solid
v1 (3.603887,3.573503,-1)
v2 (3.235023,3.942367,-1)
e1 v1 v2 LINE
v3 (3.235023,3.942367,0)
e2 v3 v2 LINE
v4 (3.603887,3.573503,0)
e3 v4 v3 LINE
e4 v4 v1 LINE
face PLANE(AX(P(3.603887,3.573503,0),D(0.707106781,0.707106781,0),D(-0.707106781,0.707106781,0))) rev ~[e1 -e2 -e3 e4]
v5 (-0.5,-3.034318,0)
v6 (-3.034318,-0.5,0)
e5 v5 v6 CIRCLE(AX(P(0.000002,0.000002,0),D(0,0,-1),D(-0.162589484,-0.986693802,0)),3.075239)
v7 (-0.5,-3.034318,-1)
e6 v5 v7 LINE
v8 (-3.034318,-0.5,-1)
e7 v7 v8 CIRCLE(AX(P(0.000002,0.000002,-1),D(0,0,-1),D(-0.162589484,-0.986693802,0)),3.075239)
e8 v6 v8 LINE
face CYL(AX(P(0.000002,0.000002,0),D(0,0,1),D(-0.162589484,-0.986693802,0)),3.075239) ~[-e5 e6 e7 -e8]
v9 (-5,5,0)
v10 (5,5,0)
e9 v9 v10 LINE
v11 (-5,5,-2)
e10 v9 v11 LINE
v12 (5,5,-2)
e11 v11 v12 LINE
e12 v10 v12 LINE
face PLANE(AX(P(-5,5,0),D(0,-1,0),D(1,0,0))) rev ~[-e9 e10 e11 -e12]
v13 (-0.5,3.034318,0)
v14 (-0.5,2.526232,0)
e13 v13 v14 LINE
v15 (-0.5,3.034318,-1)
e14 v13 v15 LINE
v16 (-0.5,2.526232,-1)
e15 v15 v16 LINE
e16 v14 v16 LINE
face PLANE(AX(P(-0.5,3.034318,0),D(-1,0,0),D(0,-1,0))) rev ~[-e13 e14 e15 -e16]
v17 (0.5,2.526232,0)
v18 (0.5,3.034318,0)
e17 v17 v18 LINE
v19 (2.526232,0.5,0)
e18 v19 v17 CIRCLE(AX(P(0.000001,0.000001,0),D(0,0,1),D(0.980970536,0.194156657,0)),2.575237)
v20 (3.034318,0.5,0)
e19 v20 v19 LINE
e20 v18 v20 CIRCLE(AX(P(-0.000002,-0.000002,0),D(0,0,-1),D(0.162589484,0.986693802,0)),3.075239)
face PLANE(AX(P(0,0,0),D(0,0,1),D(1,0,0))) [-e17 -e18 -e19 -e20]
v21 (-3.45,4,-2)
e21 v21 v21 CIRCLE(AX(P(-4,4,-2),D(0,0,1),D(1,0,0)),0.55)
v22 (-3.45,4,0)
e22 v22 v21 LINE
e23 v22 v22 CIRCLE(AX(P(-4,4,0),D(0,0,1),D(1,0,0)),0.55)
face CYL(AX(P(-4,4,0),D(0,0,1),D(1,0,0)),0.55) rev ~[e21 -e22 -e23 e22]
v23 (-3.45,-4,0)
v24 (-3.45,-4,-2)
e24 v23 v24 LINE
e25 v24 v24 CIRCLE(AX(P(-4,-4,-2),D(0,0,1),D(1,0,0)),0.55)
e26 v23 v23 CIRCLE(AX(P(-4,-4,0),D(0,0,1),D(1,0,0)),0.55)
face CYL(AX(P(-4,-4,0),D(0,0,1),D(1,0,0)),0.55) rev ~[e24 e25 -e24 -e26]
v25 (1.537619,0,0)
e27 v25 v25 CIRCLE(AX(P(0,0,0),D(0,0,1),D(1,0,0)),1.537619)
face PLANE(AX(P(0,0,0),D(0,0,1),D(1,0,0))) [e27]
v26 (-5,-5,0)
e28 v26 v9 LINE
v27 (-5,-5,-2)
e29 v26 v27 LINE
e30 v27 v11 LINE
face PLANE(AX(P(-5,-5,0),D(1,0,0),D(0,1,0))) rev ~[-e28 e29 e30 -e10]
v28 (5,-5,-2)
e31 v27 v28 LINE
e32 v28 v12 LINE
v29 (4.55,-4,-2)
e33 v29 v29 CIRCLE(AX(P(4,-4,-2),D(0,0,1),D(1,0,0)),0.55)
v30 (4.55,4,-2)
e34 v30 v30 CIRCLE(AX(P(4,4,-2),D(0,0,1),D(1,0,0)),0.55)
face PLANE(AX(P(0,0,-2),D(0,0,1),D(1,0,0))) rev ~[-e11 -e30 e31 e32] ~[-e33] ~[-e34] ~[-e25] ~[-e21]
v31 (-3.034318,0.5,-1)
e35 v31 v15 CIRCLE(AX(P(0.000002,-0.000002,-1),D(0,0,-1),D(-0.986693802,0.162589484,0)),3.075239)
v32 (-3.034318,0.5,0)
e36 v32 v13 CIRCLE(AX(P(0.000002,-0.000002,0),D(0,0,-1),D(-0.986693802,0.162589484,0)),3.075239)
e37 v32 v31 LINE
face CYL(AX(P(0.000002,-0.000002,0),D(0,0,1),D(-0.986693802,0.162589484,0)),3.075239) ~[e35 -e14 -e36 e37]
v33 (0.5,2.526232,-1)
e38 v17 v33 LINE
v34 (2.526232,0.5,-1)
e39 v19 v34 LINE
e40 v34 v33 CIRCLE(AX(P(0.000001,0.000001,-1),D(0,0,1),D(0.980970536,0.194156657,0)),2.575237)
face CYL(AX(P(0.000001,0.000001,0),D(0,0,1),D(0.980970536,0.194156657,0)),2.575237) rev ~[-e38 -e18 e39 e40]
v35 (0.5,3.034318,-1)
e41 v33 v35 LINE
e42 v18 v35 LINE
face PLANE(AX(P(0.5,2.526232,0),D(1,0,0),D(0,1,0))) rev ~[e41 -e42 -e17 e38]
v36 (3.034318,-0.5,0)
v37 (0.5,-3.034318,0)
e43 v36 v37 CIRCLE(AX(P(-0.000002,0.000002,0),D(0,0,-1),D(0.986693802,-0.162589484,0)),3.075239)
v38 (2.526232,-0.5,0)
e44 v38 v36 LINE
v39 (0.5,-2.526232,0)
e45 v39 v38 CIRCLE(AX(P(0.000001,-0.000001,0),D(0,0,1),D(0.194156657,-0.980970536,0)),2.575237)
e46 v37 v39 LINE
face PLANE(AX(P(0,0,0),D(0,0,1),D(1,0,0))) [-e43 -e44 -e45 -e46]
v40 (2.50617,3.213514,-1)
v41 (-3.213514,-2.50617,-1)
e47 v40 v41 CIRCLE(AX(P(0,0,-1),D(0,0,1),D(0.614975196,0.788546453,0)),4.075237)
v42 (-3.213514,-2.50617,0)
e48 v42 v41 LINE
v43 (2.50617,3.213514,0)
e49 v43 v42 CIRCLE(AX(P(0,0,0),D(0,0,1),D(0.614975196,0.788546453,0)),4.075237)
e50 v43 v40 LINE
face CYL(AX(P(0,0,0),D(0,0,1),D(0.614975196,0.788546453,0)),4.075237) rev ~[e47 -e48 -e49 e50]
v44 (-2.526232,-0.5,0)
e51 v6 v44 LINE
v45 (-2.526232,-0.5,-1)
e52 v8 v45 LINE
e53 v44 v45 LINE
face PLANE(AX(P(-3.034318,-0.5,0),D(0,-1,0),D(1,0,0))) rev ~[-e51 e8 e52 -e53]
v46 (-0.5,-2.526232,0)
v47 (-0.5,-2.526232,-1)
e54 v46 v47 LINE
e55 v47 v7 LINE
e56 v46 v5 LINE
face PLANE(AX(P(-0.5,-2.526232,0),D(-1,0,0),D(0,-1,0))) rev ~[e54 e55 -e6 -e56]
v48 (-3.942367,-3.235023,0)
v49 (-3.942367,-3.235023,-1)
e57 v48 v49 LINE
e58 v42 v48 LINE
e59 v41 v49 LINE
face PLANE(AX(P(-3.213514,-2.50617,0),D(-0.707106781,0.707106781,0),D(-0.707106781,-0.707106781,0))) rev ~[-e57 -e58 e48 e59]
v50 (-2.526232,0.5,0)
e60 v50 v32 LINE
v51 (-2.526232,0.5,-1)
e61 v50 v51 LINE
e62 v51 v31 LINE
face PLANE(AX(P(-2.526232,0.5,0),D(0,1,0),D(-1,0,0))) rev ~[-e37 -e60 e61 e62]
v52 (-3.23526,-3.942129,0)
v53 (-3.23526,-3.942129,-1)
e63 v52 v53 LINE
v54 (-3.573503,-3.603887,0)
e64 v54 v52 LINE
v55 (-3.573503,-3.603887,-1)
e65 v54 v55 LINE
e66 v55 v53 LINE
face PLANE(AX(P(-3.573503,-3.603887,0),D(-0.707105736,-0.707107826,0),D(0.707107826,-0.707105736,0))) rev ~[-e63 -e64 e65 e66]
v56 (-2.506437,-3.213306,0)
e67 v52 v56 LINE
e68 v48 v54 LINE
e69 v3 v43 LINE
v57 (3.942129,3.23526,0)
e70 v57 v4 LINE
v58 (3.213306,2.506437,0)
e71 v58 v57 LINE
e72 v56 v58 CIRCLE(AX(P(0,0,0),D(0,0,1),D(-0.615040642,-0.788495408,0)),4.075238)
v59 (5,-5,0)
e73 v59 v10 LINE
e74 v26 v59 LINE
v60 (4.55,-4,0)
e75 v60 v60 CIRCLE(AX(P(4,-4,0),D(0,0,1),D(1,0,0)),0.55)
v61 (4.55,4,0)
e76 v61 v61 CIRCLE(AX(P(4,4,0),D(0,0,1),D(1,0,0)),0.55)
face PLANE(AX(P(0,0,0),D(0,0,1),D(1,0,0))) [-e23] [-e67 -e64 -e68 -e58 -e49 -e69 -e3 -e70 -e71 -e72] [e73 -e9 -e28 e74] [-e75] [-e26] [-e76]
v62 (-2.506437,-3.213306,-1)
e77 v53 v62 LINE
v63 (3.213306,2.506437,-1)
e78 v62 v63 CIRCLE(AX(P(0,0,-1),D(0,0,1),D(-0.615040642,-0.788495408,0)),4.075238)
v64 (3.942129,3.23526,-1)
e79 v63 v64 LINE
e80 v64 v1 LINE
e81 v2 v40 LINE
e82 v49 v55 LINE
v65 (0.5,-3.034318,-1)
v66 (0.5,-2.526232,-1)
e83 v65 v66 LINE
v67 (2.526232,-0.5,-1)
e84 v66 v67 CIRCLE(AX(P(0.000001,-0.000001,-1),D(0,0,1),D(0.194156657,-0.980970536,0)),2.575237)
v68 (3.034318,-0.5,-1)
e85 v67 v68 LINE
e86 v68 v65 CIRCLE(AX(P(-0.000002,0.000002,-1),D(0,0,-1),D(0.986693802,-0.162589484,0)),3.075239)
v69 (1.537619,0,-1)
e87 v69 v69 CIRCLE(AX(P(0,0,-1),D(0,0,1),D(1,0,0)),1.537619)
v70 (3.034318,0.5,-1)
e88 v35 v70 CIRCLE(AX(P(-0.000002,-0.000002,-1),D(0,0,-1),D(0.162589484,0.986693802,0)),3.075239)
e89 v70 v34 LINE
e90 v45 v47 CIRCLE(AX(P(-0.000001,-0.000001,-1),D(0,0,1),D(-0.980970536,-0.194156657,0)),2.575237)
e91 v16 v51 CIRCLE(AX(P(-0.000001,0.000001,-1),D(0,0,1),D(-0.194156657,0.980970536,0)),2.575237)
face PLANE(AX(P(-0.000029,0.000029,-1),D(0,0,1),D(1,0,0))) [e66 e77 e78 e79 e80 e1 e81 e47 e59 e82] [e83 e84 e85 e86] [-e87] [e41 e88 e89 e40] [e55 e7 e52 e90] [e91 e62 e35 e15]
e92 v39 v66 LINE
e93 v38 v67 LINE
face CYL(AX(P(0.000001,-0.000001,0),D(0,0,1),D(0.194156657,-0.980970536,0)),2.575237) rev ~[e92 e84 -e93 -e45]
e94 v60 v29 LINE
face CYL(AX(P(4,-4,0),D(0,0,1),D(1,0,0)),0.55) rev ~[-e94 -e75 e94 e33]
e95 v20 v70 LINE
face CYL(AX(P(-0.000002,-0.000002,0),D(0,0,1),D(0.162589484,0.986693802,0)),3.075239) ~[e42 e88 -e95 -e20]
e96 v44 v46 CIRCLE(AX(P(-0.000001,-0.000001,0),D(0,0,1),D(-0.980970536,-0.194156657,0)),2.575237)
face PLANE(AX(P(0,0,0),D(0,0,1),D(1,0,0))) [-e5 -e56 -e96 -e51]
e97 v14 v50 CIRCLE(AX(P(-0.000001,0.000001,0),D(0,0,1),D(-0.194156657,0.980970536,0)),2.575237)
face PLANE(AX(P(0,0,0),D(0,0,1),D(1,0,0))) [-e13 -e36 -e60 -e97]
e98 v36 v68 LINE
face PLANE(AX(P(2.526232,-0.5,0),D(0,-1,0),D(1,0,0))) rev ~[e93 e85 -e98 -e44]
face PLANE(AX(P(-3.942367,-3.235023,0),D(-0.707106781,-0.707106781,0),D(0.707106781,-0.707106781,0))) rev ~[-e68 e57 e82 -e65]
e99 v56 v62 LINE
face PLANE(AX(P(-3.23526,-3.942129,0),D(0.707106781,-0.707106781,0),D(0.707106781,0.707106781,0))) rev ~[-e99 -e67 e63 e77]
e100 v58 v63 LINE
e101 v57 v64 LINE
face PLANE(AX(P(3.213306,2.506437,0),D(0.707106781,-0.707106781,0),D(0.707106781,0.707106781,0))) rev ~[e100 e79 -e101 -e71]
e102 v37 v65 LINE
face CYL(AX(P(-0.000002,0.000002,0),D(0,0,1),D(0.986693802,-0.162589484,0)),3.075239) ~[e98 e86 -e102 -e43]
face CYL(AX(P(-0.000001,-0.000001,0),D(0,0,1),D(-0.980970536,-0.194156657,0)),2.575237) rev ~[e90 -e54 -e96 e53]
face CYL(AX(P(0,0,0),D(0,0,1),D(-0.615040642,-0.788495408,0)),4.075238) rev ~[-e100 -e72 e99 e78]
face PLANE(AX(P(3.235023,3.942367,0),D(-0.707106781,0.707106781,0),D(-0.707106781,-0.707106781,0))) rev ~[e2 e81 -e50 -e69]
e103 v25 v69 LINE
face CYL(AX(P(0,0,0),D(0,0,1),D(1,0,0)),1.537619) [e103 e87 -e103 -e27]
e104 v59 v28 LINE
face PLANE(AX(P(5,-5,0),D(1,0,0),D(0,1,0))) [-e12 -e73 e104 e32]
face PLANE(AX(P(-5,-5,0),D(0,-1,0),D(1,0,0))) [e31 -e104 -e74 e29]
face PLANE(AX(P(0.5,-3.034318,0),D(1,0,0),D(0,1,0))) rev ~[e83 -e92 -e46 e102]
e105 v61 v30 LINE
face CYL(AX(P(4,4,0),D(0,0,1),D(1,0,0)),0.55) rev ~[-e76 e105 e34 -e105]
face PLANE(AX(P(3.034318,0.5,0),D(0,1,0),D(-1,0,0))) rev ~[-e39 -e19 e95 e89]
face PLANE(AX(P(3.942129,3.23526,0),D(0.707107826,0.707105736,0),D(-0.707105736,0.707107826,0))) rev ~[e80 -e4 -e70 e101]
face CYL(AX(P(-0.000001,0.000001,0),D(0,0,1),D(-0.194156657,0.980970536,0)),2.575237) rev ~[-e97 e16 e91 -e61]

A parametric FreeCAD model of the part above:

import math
import FreeCAD as App
import Part
import Sketcher

V = App.Vector
Q = App.Units.Quantity


def add_polygon(sketch, points):
    """Adds a closed chain of lines whose ends are joined by coincident constraints."""
    first, n = sketch.GeometryCount, len(points)
    for a, b in zip(points, points[1:] + points[:1]):
        sketch.addGeometry(Part.LineSegment(App.Vector(*a, 0), App.Vector(*b, 0)), False)
    for i in range(n):
        sketch.addConstraint(Sketcher.Constraint("Coincident", first + i, 2, first + (i + 1) % n, 1))

doc = App.newDocument("Part")
body = doc.addObject("PartDesign::Body", "Body")

sketch1 = body.newObject("Sketcher::SketchObject", "Sketch")
sketch1.AttachmentSupport = (doc.getObject("XY_Plane"), [""])
sketch1.MapMode = "FlatFace"
add_polygon(sketch1, [(-5, 5), (-5, -5), (5, -5), (5, 5)])
sketch1.addGeometry(Part.Circle(V(-4, -4, 0), V(0, 0, 1), 0.6), False)
sketch1.addGeometry(Part.Circle(V(4, -4, 0), V(0, 0, 1), 0.6), False)
sketch1.addGeometry(Part.Circle(V(-4, 4, 0), V(0, 0, 1), 0.6), False)
sketch1.addGeometry(Part.Circle(V(4, 4, 0), V(0, 0, 1), 0.6), False)
sketch1.addConstraint(Sketcher.Constraint("Vertical", 0))
sketch1.addConstraint(Sketcher.Constraint("Horizontal", 1))
sketch1.addConstraint(Sketcher.Constraint("Vertical", 2))
sketch1.addConstraint(Sketcher.Constraint("Horizontal", 3))
sketch1.addConstraint(Sketcher.Constraint("Equal", 4, 5))
sketch1.addConstraint(Sketcher.Constraint("Equal", 5, 6))
sketch1.addConstraint(Sketcher.Constraint("Equal", 6, 7))
sketch1.addConstraint(Sketcher.Constraint("Symmetric", 5, 3, 6, 3, -1, 1))
sketch1.addConstraint(Sketcher.Constraint("Symmetric", 4, 3, 7, 3, -1, 1))
sketch1.addConstraint(Sketcher.Constraint("Symmetric", 0, 2, 2, 2, -1, 1))
sketch1.addConstraint(Sketcher.Constraint("Symmetric", 4, 3, 5, 3, -2))
sketch1.addConstraint(Sketcher.Constraint("Equal", 3, 0))
sketch1.addConstraint(Sketcher.Constraint("Diameter", 4, Q("1.1 mm")))
sketch1.addConstraint(Sketcher.Constraint("DistanceX", 1, 1, 1, 2, Q("10 mm")))
sketch1.addConstraint(Sketcher.Constraint("DistanceX", 4, 3, -1, 1, Q("4 mm")))
sketch1.addConstraint(Sketcher.Constraint("DistanceY", 4, 3, -1, 1, Q("4 mm")))
pad1 = body.newObject("PartDesign::Pad", "Pad")
pad1.Profile = sketch1
pad1.Length = 2
pad1.Reversed = True

sketch2 = body.newObject("Sketcher::SketchObject", "Sketch001")
sketch2.AttachmentSupport = (doc.getObject("XY_Plane"), [""])
sketch2.MapMode = "FlatFace"
sketch2.addGeometry(Part.LineSegment(V(3.24, 3.94, 0), V(2.51, 3.21, 0)), False)
sketch2.addGeometry(Part.ArcOfCircle(Part.Circle(V(0, 0, 0), V(0, 0, 1), 4.08), math.radians(52), math.radians(218)), False)
sketch2.addGeometry(Part.LineSegment(V(-3.21, -2.51, 0), V(-3.94, -3.24, 0)), False)
sketch2.addGeometry(Part.LineSegment(V(-3.94, -3.24, 0), V(-3.57, -3.6, 0)), False)
sketch2.addGeometry(Part.LineSegment(V(-3.57, -3.6, 0), V(-3.24, -3.94, 0)), False)
sketch2.addGeometry(Part.LineSegment(V(-3.24, -3.94, 0), V(-2.51, -3.21, 0)), False)
sketch2.addGeometry(Part.ArcOfCircle(Part.Circle(V(0, 0, 0), V(0, 0, 1), 4.08), math.radians(-128), math.radians(38)), False)
sketch2.addGeometry(Part.LineSegment(V(3.21, 2.51, 0), V(3.94, 3.24, 0)), False)
sketch2.addGeometry(Part.LineSegment(V(3.94, 3.24, 0), V(3.6, 3.57, 0)), False)
sketch2.addGeometry(Part.LineSegment(V(3.6, 3.57, 0), V(3.24, 3.94, 0)), False)
sketch2.addGeometry(Part.ArcOfCircle(Part.Circle(V(0, 0, 0), V(0, 0, 1), 3.08), math.radians(-171), math.radians(-99)), False)
sketch2.addGeometry(Part.LineSegment(V(-3.03, -0.5, 0), V(-2.53, -0.5, 0)), False)
sketch2.addGeometry(Part.ArcOfCircle(Part.Circle(V(0, 0, 0), V(0, 0, 1), 2.58), math.radians(-169), math.radians(-101)), False)
sketch2.addGeometry(Part.LineSegment(V(-0.5, -2.53, 0), V(-0.5, -3.03, 0)), False)
sketch2.addGeometry(Part.Circle(V(0, 0, 0), V(0, 0, 1), 1.54), False)
sketch2.addGeometry(Part.LineSegment(V(0.5, -3.03, 0), V(0.5, -2.53, 0)), False)
sketch2.addGeometry(Part.ArcOfCircle(Part.Circle(V(0, 0, 0), V(0, 0, 1), 2.58), math.radians(-79), math.radians(-11)), False)
sketch2.addGeometry(Part.LineSegment(V(2.53, -0.5, 0), V(3.03, -0.5, 0)), False)
sketch2.addGeometry(Part.ArcOfCircle(Part.Circle(V(0, 0, 0), V(0, 0, 1), 3.08), math.radians(-81), math.radians(-9)), False)
sketch2.addGeometry(Part.LineSegment(V(-0.5, 3.03, 0), V(-0.5, 2.53, 0)), False)
sketch2.addGeometry(Part.ArcOfCircle(Part.Circle(V(0, 0, 0), V(0, 0, 1), 2.58), math.radians(101), math.radians(169)), False)
sketch2.addGeometry(Part.LineSegment(V(-2.53, 0.5, 0), V(-3.03, 0.5, 0)), False)
sketch2.addGeometry(Part.ArcOfCircle(Part.Circle(V(0, 0, 0), V(0, 0, 1), 3.08), math.radians(99), math.radians(171)), False)
sketch2.addGeometry(Part.ArcOfCircle(Part.Circle(V(0, 0, 0), V(0, 0, 1), 3.08), math.radians(9), math.radians(81)), False)
sketch2.addGeometry(Part.LineSegment(V(3.03, 0.5, 0), V(2.53, 0.5, 0)), False)
sketch2.addGeometry(Part.ArcOfCircle(Part.Circle(V(0, 0, 0), V(0, 0, 1), 2.58), math.radians(11), math.radians(79)), False)
sketch2.addGeometry(Part.LineSegment(V(0.5, 2.53, 0), V(0.5, 3.03, 0)), False)
sketch2.addConstraint(Sketcher.Constraint("Coincident", 0, 2, 1, 1))
sketch2.addConstraint(Sketcher.Constraint("Coincident", 1, 2, 2, 1))
sketch2.addConstraint(Sketcher.Constraint("Coincident", 2, 2, 3, 1))
sketch2.addConstraint(Sketcher.Constraint("Coincident", 3, 2, 4, 1))
sketch2.addConstraint(Sketcher.Constraint("Coincident", 4, 2, 5, 1))
sketch2.addConstraint(Sketcher.Constraint("Coincident", 5, 2, 6, 1))
sketch2.addConstraint(Sketcher.Constraint("Coincident", 6, 2, 7, 1))
sketch2.addConstraint(Sketcher.Constraint("Coincident", 7, 2, 8, 1))
sketch2.addConstraint(Sketcher.Constraint("Coincident", 8, 2, 9, 1))
sketch2.addConstraint(Sketcher.Constraint("Coincident", 9, 2, 0, 1))
sketch2.addConstraint(Sketcher.Constraint("Coincident", 10, 1, 11, 1))
sketch2.addConstraint(Sketcher.Constraint("Coincident", 11, 2, 12, 1))
sketch2.addConstraint(Sketcher.Constraint("Coincident", 12, 2, 13, 1))
sketch2.addConstraint(Sketcher.Constraint("Coincident", 13, 2, 10, 2))
sketch2.addConstraint(Sketcher.Constraint("Coincident", 15, 2, 16, 1))
sketch2.addConstraint(Sketcher.Constraint("Coincident", 16, 2, 17, 1))
sketch2.addConstraint(Sketcher.Constraint("Coincident", 17, 2, 18, 2))
sketch2.addConstraint(Sketcher.Constraint("Coincident", 18, 1, 15, 1))
sketch2.addConstraint(Sketcher.Constraint("Coincident", 19, 2, 20, 1))
sketch2.addConstraint(Sketcher.Constraint("Coincident", 20, 2, 21, 1))
sketch2.addConstraint(Sketcher.Constraint("Coincident", 21, 2, 22, 2))
sketch2.addConstraint(Sketcher.Constraint("Coincident", 22, 1, 19, 1))
sketch2.addConstraint(Sketcher.Constraint("Coincident", 23, 1, 24, 1))
sketch2.addConstraint(Sketcher.Constraint("Coincident", 24, 2, 25, 1))
sketch2.addConstraint(Sketcher.Constraint("Coincident", 25, 2, 26, 1))
sketch2.addConstraint(Sketcher.Constraint("Coincident", 26, 2, 23, 2))
sketch2.addConstraint(Sketcher.Constraint("Horizontal", 11))
sketch2.addConstraint(Sketcher.Constraint("Vertical", 13))
sketch2.addConstraint(Sketcher.Constraint("Vertical", 15))
sketch2.addConstraint(Sketcher.Constraint("Horizontal", 17))
sketch2.addConstraint(Sketcher.Constraint("Vertical", 19))
sketch2.addConstraint(Sketcher.Constraint("Horizontal", 21))
sketch2.addConstraint(Sketcher.Constraint("Horizontal", 24))
sketch2.addConstraint(Sketcher.Constraint("Vertical", 26))
sketch2.addConstraint(Sketcher.Constraint("Coincident", 1, 3, -1, 1))
sketch2.addConstraint(Sketcher.Constraint("Coincident", 6, 3, -1, 1))
sketch2.addConstraint(Sketcher.Constraint("Coincident", 10, 3, -1, 1))
sketch2.addConstraint(Sketcher.Constraint("Coincident", 12, 3, -1, 1))
sketch2.addConstraint(Sketcher.Constraint("Coincident", 14, 3, -1, 1))
sketch2.addConstraint(Sketcher.Constraint("Coincident", 16, 3, -1, 1))
sketch2.addConstraint(Sketcher.Constraint("Coincident", 18, 3, -1, 1))
sketch2.addConstraint(Sketcher.Constraint("Coincident", 20, 3, -1, 1))
sketch2.addConstraint(Sketcher.Constraint("Coincident", 22, 3, -1, 1))
sketch2.addConstraint(Sketcher.Constraint("Coincident", 23, 3, -1, 1))
sketch2.addConstraint(Sketcher.Constraint("Coincident", 25, 3, -1, 1))
sketch2.addConstraint(Sketcher.Constraint("Equal", 1, 6))
sketch2.addConstraint(Sketcher.Constraint("Equal", 12, 16))
sketch2.addConstraint(Sketcher.Constraint("Equal", 10, 18))
sketch2.addConstraint(Sketcher.Constraint("Equal", 16, 20))
sketch2.addConstraint(Sketcher.Constraint("Equal", 18, 22))
sketch2.addConstraint(Sketcher.Constraint("Equal", 22, 23))
sketch2.addConstraint(Sketcher.Constraint("Equal", 20, 25))
sketch2.addConstraint(Sketcher.Constraint("Parallel", 0, 2))
sketch2.addConstraint(Sketcher.Constraint("Perpendicular", 2, 3))
sketch2.addConstraint(Sketcher.Constraint("Parallel", 3, 4))
sketch2.addConstraint(Sketcher.Constraint("Perpendicular", 4, 5))
sketch2.addConstraint(Sketcher.Constraint("Parallel", 5, 7))
sketch2.addConstraint(Sketcher.Constraint("Perpendicular", 7, 8))
sketch2.addConstraint(Sketcher.Constraint("Parallel", 8, 9))
sketch2.addConstraint(Sketcher.Constraint("Horizontal", 12, 2, 15, 2))
sketch2.addConstraint(Sketcher.Constraint("Horizontal", 11, 2, 16, 2))
sketch2.addConstraint(Sketcher.Constraint("Horizontal", 21, 2, 23, 1))
sketch2.addConstraint(Sketcher.Constraint("Horizontal", 19, 2, 25, 2))
sketch2.addConstraint(Sketcher.Constraint("Vertical", 13, 2, 19, 2))
sketch2.addConstraint(Sketcher.Constraint("Vertical", 11, 2, 20, 2))
sketch2.addConstraint(Sketcher.Constraint("Equal", 24, 13))
sketch2.addConstraint(Sketcher.Constraint("Equal", 0, 2))
sketch2.addConstraint(Sketcher.Constraint("Equal", 5, 7))
sketch2.addConstraint(Sketcher.Constraint("Equal", 4, 8))
sketch2.addConstraint(Sketcher.Constraint("Equal", 3, 9))
sketch2.addConstraint(Sketcher.Constraint("Angle", 0, Q("-135 deg")))
sketch2.addConstraint(Sketcher.Constraint("DistanceX", 12, 2, 15, 2, Q("1 mm")))
sketch2.addConstraint(Sketcher.Constraint("Diameter", 14, Q("3.075238 mm")))
sketch2.addConstraint(Sketcher.Constraint("Radius", 10, Q("3.075239 mm")))
sketch2.addConstraint(Sketcher.Constraint("Radius", 1, Q("4.075237 mm")))
sketch2.addConstraint(Sketcher.Constraint("Radius", 12, Q("2.575237 mm")))
sketch2.addConstraint(Sketcher.Constraint("DistanceX", 3, 2, 23, 3, Q("3.573501 mm")))
sketch2.addConstraint(Sketcher.Constraint("Distance", 5, Q("1.030711 mm")))
sketch2.addConstraint(Sketcher.Constraint("DistanceX", -1, 1, 0, 2, Q("2.50617 mm")))
sketch2.addConstraint(Sketcher.Constraint("DistanceX", 4, 2, -1, 1, Q("3.23526 mm")))
pocket1 = body.newObject("PartDesign::Pocket", "Pocket")
pocket1.Profile = sketch2
pocket1.Length = 1

doc.recompute()
